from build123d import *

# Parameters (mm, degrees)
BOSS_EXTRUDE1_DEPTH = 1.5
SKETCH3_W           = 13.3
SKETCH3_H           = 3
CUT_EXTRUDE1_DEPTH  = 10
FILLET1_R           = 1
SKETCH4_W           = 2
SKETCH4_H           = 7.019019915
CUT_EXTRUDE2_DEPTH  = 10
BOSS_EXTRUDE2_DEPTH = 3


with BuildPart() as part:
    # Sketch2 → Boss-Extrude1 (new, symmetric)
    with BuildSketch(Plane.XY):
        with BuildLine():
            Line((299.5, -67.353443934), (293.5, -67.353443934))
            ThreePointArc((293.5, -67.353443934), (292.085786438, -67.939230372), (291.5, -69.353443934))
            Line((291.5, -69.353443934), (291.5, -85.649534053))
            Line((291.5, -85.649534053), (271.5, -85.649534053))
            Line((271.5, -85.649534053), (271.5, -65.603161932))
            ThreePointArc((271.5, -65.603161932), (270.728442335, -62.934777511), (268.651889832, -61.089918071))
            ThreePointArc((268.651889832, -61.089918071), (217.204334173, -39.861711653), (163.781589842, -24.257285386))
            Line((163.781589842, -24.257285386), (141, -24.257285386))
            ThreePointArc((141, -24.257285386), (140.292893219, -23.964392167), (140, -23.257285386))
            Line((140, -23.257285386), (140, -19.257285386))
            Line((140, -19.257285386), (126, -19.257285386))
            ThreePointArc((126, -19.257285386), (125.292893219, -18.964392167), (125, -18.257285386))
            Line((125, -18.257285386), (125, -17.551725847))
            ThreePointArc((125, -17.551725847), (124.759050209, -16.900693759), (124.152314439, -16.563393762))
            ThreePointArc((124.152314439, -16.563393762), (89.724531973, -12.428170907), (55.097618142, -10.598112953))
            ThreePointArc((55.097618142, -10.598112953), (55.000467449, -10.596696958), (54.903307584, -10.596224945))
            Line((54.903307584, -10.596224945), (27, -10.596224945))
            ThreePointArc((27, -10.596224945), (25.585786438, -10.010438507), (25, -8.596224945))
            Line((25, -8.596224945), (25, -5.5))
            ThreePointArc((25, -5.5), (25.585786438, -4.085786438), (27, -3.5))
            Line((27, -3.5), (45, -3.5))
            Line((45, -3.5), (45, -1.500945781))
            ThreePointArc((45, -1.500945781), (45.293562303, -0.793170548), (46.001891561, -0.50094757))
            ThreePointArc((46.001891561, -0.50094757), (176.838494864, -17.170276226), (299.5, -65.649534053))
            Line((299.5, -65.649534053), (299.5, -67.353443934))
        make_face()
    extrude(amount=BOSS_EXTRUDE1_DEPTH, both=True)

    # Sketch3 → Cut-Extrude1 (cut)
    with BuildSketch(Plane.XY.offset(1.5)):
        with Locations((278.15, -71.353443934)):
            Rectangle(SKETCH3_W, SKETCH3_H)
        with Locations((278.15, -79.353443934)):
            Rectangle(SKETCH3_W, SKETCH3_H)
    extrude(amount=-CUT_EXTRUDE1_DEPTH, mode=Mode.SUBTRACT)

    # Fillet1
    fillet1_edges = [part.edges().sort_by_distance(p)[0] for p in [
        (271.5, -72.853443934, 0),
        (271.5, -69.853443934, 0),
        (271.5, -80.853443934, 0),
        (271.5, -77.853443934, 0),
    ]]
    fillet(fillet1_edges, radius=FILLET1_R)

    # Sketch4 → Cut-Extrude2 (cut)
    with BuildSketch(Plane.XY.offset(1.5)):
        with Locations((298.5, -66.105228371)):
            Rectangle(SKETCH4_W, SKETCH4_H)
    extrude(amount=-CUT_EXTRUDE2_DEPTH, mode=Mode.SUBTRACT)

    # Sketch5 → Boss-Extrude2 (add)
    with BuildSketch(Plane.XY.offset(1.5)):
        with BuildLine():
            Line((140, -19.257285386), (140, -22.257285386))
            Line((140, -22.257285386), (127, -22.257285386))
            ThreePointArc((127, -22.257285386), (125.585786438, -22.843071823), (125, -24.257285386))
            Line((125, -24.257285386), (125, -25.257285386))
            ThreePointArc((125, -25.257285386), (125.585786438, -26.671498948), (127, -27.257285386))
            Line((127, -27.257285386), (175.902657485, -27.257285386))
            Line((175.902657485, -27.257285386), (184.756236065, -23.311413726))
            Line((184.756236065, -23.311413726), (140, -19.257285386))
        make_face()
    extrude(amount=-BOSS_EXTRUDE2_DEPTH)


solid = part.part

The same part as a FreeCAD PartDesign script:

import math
import FreeCAD as App
import Part
import Sketcher


def edges_at(feature, points):
    """Names of the edges that pass closest to the given points."""
    edges = feature.Shape.Edges
    near = lambda p: min(range(len(edges)), key=lambda i: edges[i].distToShape(Part.Vertex(*p))[0])
    return sorted({f"Edge{near(p) + 1}" for p in points})


def add_polygon(sketch, points):
    """Adds a closed chain of lines whose ends are joined by coincident constraints."""
    first, n = sketch.GeometryCount, len(points)
    for a, b in zip(points, points[1:] + points[:1]):
        sketch.addGeometry(Part.LineSegment(App.Vector(*a, 0), App.Vector(*b, 0)), False)
    for i in range(n):
        sketch.addConstraint(Sketcher.Constraint("Coincident", first + i, 2, first + (i + 1) % n, 1))

doc = App.newDocument("Part")
body = doc.addObject("PartDesign::Body", "Body")

# Sketch on XY plane
sketch1 = doc.addObject("Sketcher::SketchObject", "Sketch")
body.addObject(sketch1)
sketch1.AttachmentSupport = (doc.XY_Plane, [""])
sketch1.MapMode = "FlatFace"
sketch1.addGeometry(Part.LineSegment(App.Vector(293.5, -67.353444, 0), App.Vector(299.5, -67.353444, 0)), False)
sketch1.addGeometry(Part.LineSegment(App.Vector(299.5, -67.353444, 0), App.Vector(299.5, -65.649534, 0)), False)
sketch1.addGeometry(Part.ArcOfCircle(Part.Circle(App.Vector(45, -530.163894, 0), App.Vector(0, 0, 1), 529.663894), math.radians(61.282369), math.radians(89.891621)), False)
sketch1.addGeometry(Part.ArcOfCircle(Part.Circle(App.Vector(46, -1.500946, 0), App.Vector(0, 0, 1), 1), math.radians(89.891621), math.radians(180)), False)
sketch1.addGeometry(Part.LineSegment(App.Vector(45, -1.500946, 0), App.Vector(45, -3.5, 0)), False)
sketch1.addGeometry(Part.LineSegment(App.Vector(45, -3.5, 0), App.Vector(27, -3.5, 0)), False)
sketch1.addGeometry(Part.ArcOfCircle(Part.Circle(App.Vector(27, -5.5, 0), App.Vector(0, 0, 1), 2), math.radians(90), math.radians(180)), False)
sketch1.addGeometry(Part.LineSegment(App.Vector(25, -5.5, 0), App.Vector(25, -8.596225, 0)), False)
sketch1.addGeometry(Part.ArcOfCircle(Part.Circle(App.Vector(27, -8.596225, 0), App.Vector(0, 0, 1), 2), math.radians(-180), math.radians(-90)), False)
sketch1.addGeometry(Part.LineSegment(App.Vector(27, -10.596225, 0), App.Vector(54.903308, -10.596225, 0)), False)
sketch1.addGeometry(Part.ArcOfCircle(Part.Circle(App.Vector(54.903308, -20.596221, 0), App.Vector(0, 0, 1), 9.999996), math.radians(88.886612), math.radians(90)), False)
sketch1.addGeometry(Part.ArcOfCircle(Part.Circle(App.Vector(45, -530.163894, 0), App.Vector(0, 0, 1), 519.663894), math.radians(81.238924), math.radians(88.886612)), False)
sketch1.addGeometry(Part.ArcOfCircle(Part.Circle(App.Vector(124, -17.551726, 0), App.Vector(0, 0, 1), 1), math.radians(0), math.radians(81.238924)), False)
sketch1.addGeometry(Part.LineSegment(App.Vector(125, -17.551726, 0), App.Vector(125, -18.257285, 0)), False)
sketch1.addGeometry(Part.ArcOfCircle(Part.Circle(App.Vector(126, -18.257285, 0), App.Vector(0, 0, 1), 1), math.radians(-180), math.radians(-90)), False)
sketch1.addGeometry(Part.LineSegment(App.Vector(126, -19.257285, 0), App.Vector(140, -19.257285, 0)), False)
sketch1.addGeometry(Part.LineSegment(App.Vector(140, -19.257285, 0), App.Vector(140, -23.257285, 0)), False)
sketch1.addGeometry(Part.ArcOfCircle(Part.Circle(App.Vector(141, -23.257285, 0), App.Vector(0, 0, 1), 1), math.radians(-180), math.radians(-90)), False)
sketch1.addGeometry(Part.LineSegment(App.Vector(141, -24.257285, 0), App.Vector(163.78159, -24.257285, 0)), False)
sketch1.addGeometry(Part.ArcOfCircle(Part.Circle(App.Vector(45, -530.163894, 0), App.Vector(0, 0, 1), 519.663894), math.radians(64.508451), math.radians(76.786876)), False)
sketch1.addGeometry(Part.ArcOfCircle(Part.Circle(App.Vector(266.5, -65.603162, 0), App.Vector(0, 0, 1), 5), math.radians(0), math.radians(64.508451)), False)
sketch1.addGeometry(Part.LineSegment(App.Vector(271.5, -65.603162, 0), App.Vector(271.5, -85.649534, 0)), False)
sketch1.addGeometry(Part.LineSegment(App.Vector(271.5, -85.649534, 0), App.Vector(291.5, -85.649534, 0)), False)
sketch1.addGeometry(Part.LineSegment(App.Vector(291.5, -85.649534, 0), App.Vector(291.5, -69.353444, 0)), False)
sketch1.addGeometry(Part.ArcOfCircle(Part.Circle(App.Vector(293.5, -69.353444, 0), App.Vector(0, 0, 1), 2), math.radians(90), math.radians(180)), False)
sketch1.addConstraint(Sketcher.Constraint("Coincident", 0, 2, 1, 1))
sketch1.addConstraint(Sketcher.Constraint("Coincident", 1, 2, 2, 1))
sketch1.addConstraint(Sketcher.Constraint("Tangent", 2, 2, 3, 1))
sketch1.addConstraint(Sketcher.Constraint("Tangent", 3, 2, 4, 1))
sketch1.addConstraint(Sketcher.Constraint("Coincident", 4, 2, 5, 1))
sketch1.addConstraint(Sketcher.Constraint("Tangent", 5, 2, 6, 1))
sketch1.addConstraint(Sketcher.Constraint("Tangent", 6, 2, 7, 1))
sketch1.addConstraint(Sketcher.Constraint("Tangent", 7, 2, 8, 1))
sketch1.addConstraint(Sketcher.Constraint("Tangent", 8, 2, 9, 1))
sketch1.addConstraint(Sketcher.Constraint("Tangent", 9, 2, 10, 2))
sketch1.addConstraint(Sketcher.Constraint("Tangent", 10, 1, 11, 2))
sketch1.addConstraint(Sketcher.Constraint("Tangent", 11, 1, 12, 2))
sketch1.addConstraint(Sketcher.Constraint("Tangent", 12, 1, 13, 1))
sketch1.addConstraint(Sketcher.Constraint("Tangent", 13, 2, 14, 1))
sketch1.addConstraint(Sketcher.Constraint("Tangent", 14, 2, 15, 1))
sketch1.addConstraint(Sketcher.Constraint("Coincident", 15, 2, 16, 1))
sketch1.addConstraint(Sketcher.Constraint("Tangent", 16, 2, 17, 1))
sketch1.addConstraint(Sketcher.Constraint("Tangent", 17, 2, 18, 1))
sketch1.addConstraint(Sketcher.Constraint("Coincident", 18, 2, 19, 2))
sketch1.addConstraint(Sketcher.Constraint("Tangent", 19, 1, 20, 2))
sketch1.addConstraint(Sketcher.Constraint("Tangent", 20, 1, 21, 1))
sketch1.addConstraint(Sketcher.Constraint("Coincident", 21, 2, 22, 1))
sketch1.addConstraint(Sketcher.Constraint("Coincident", 22, 2, 23, 1))
sketch1.addConstraint(Sketcher.Constraint("Tangent", 23, 2, 24, 2))
sketch1.addConstraint(Sketcher.Constraint("Tangent", 24, 1, 0, 1))
sketch1.addConstraint(Sketcher.Constraint("Horizontal", 0))
sketch1.addConstraint(Sketcher.Constraint("Vertical", 1))
sketch1.addConstraint(Sketcher.Constraint("Vertical", 4))
sketch1.addConstraint(Sketcher.Constraint("Horizontal", 5))
sketch1.addConstraint(Sketcher.Constraint("Vertical", 7))
sketch1.addConstraint(Sketcher.Constraint("Horizontal", 9))
sketch1.addConstraint(Sketcher.Constraint("Vertical", 13))
sketch1.addConstraint(Sketcher.Constraint("Horizontal", 15))
sketch1.addConstraint(Sketcher.Constraint("Vertical", 16))
sketch1.addConstraint(Sketcher.Constraint("Horizontal", 18))
sketch1.addConstraint(Sketcher.Constraint("Vertical", 21))
sketch1.addConstraint(Sketcher.Constraint("Horizontal", 22))
sketch1.addConstraint(Sketcher.Constraint("Vertical", 23))
sketch1.addConstraint(Sketcher.Constraint("Coincident", 11, 3, 2, 3))
sketch1.addConstraint(Sketcher.Constraint("Coincident", 19, 3, 2, 3))
sketch1.addConstraint(Sketcher.Constraint("Equal", 6, 8))
sketch1.addConstraint(Sketcher.Constraint("Equal", 3, 12))
sketch1.addConstraint(Sketcher.Constraint("Equal", 12, 14))
sketch1.addConstraint(Sketcher.Constraint("Equal", 14, 17))
sketch1.addConstraint(Sketcher.Constraint("Equal", 11, 19))
sketch1.addConstraint(Sketcher.Constraint("Equal", 8, 24))
sketch1.addConstraint(Sketcher.Constraint("Vertical", 19, 3, 3, 2))
sketch1.addConstraint(Sketcher.Constraint("Radius", 3, 1.0))
sketch1.addConstraint(Sketcher.Constraint("Radius", 6, 2.0))
sketch1.addConstraint(Sketcher.Constraint("Radius", 20, 5.0))
sketch1.addConstraint(Sketcher.Constraint("DistanceX", 0, 1, 0, 2, 6.0))
sketch1.addConstraint(Sketcher.Constraint("DistanceX", 5, 2, 5, 1, 18.0))
sketch1.addConstraint(Sketcher.Constraint("DistanceX", 15, 1, 15, 2, 14.0))
sketch1.addConstraint(Sketcher.Constraint("DistanceX", 22, 1, 22, 2, 20.0))
sketch1.addConstraint(Sketcher.Constraint("DistanceY", 16, 2, 16, 1, 4.0))
sketch1.addConstraint(Sketcher.Constraint("DistanceX", -1, 1, 2, 3, 45.0))
sketch1.addConstraint(Sketcher.Constraint("DistanceX", -1, 1, 12, 3, 124.0))
sketch1.addConstraint(Sketcher.Constraint("DistanceY", 22, 2, 1, 2, 20.0))
sketch1.addConstraint(Sketcher.Constraint("DistanceY", 6, 3, -1, 1, 5.5))
sketch1.addConstraint(Sketcher.Constraint("DistanceX", -1, 1, 20, 3, 266.5))
sketch1.addConstraint(Sketcher.Constraint("Radius", 2, 529.663894))
sketch1.addConstraint(Sketcher.Constraint("Radius", 10, 9.999996))
sketch1.addConstraint(Sketcher.Constraint("Radius", 11, 519.663894))
sketch1.addConstraint(Sketcher.Constraint("DistanceX", 18, 1, 18, 2, 22.78159))
sketch1.addConstraint(Sketcher.Constraint("DistanceY", 1, 1, 1, 2, 1.70391))
sketch1.addConstraint(Sketcher.Constraint("DistanceY", 12, 3, 8, 3, 8.955501))
sketch1.addConstraint(Sketcher.Constraint("DistanceY", 4, 2, 4, 1, 1.999054))
pad1 = doc.addObject("PartDesign::Pad", "Pad")
body.addObject(pad1)
pad1.Profile = sketch1
pad1.Length = 3
pad1.Midplane = True

# Sketch on XY plane
sketch2 = doc.addObject("Sketcher::SketchObject", "Sketch001")
body.addObject(sketch2)
sketch2.AttachmentSupport = (doc.XY_Plane, [""])
sketch2.MapMode = "FlatFace"
sketch2.AttachmentOffset = App.Placement(App.Vector(0, 0, 1.5), App.Rotation())
add_polygon(sketch2, [(271.5, -69.9), (271.5, -72.9), (284.8, -72.9), (284.8, -69.9)])  # lines 0-3
add_polygon(sketch2, [(271.5, -77.9), (271.5, -80.9), (284.8, -80.9), (284.8, -77.9)])  # lines 4-7
sketch2.addConstraint(Sketcher.Constraint("Vertical", 0))
sketch2.addConstraint(Sketcher.Constraint("Horizontal", 1))
sketch2.addConstraint(Sketcher.Constraint("Vertical", 2))
sketch2.addConstraint(Sketcher.Constraint("Horizontal", 3))
sketch2.addConstraint(Sketcher.Constraint("Vertical", 4))
sketch2.addConstraint(Sketcher.Constraint("Horizontal", 5))
sketch2.addConstraint(Sketcher.Constraint("Vertical", 6))
sketch2.addConstraint(Sketcher.Constraint("Horizontal", 7))
sketch2.addConstraint(Sketcher.Constraint("Vertical", 3, 2, 4, 2))
sketch2.addConstraint(Sketcher.Constraint("Vertical", 2, 2, 5, 2))
sketch2.addConstraint(Sketcher.Constraint("Equal", 2, 4))
sketch2.addConstraint(Sketcher.Constraint("DistanceY", 0, 2, 0, 1, 3.0))
sketch2.addConstraint(Sketcher.Constraint("DistanceX", 1, 1, 1, 2, 13.3))
sketch2.addConstraint(Sketcher.Constraint("DistanceY", 4, 2, 0, 2, 8.0))
sketch2.addConstraint(Sketcher.Constraint("DistanceX", -1, 1, 0, 2, 271.5))
sketch2.addConstraint(Sketcher.Constraint("DistanceY", 0, 2, -1, 1, 72.853444))
pocket1 = doc.addObject("PartDesign::Pocket", "Pocket")
body.addObject(pocket1)
pocket1.Profile = sketch2
pocket1.Length = 10
doc.recompute()

fillet = doc.addObject("PartDesign::Fillet", "Fillet")
body.addObject(fillet)
fillet.Base = (pocket1, edges_at(pocket1, [
    (271.5, -72.853, 0),
    (271.5, -69.853, 0),
    (271.5, -80.853, 0),
    (271.5, -77.853, 0),
]))
fillet.Radius = 1

# Sketch on XY plane
sketch3 = doc.addObject("Sketcher::SketchObject", "Sketch002")
body.addObject(sketch3)
sketch3.AttachmentSupport = (doc.XY_Plane, [""])
sketch3.MapMode = "FlatFace"
sketch3.AttachmentOffset = App.Placement(App.Vector(0, 0, 1.5), App.Rotation())
add_polygon(sketch3, [(297.5, -62.6), (297.5, -69.6), (299.5, -69.6), (299.5, -62.6)])  # lines 0-3
sketch3.addConstraint(Sketcher.Constraint("Vertical", 0))
sketch3.addConstraint(Sketcher.Constraint("Horizontal", 1))
sketch3.addConstraint(Sketcher.Constraint("Vertical", 2))
sketch3.addConstraint(Sketcher.Constraint("Horizontal", 3))
sketch3.addConstraint(Sketcher.Constraint("DistanceX", 1, 1, 1, 2, 2.0))
sketch3.addConstraint(Sketcher.Constraint("DistanceX", -1, 1, 0, 2, 297.5))
sketch3.addConstraint(Sketcher.Constraint("DistanceY", 0, 2, 0, 1, 7.01902))
sketch3.addConstraint(Sketcher.Constraint("DistanceY", 0, 2, -1, 1, 69.614738))
pocket2 = doc.addObject("PartDesign::Pocket", "Pocket001")
body.addObject(pocket2)
pocket2.Profile = sketch3
pocket2.Length = 10

# Sketch on XY plane
sketch4 = doc.addObject("Sketcher::SketchObject", "Sketch003")
body.addObject(sketch4)
sketch4.AttachmentSupport = (doc.XY_Plane, [""])
sketch4.MapMode = "FlatFace"
sketch4.AttachmentOffset = App.Placement(App.Vector(0, 0, 1.5), App.Rotation())
sketch4.addGeometry(Part.LineSegment(App.Vector(140, -19.3, 0), App.Vector(140, -22.3, 0)), False)
sketch4.addGeometry(Part.LineSegment(App.Vector(140, -22.3, 0), App.Vector(127, -22.3, 0)), False)
sketch4.addGeometry(Part.ArcOfCircle(Part.Circle(App.Vector(127, -24.3, 0), App.Vector(0, 0, 1), 2), math.radians(90), math.radians(180)), False)
sketch4.addGeometry(Part.LineSegment(App.Vector(125, -24.3, 0), App.Vector(125, -25.3, 0)), False)
sketch4.addGeometry(Part.ArcOfCircle(Part.Circle(App.Vector(127, -25.3, 0), App.Vector(0, 0, 1), 2), math.radians(-180), math.radians(-90)), False)
sketch4.addGeometry(Part.LineSegment(App.Vector(127, -27.3, 0), App.Vector(175.9, -27.3, 0)), False)
sketch4.addGeometry(Part.LineSegment(App.Vector(175.9, -27.3, 0), App.Vector(184.8, -23.3, 0)), False)
sketch4.addGeometry(Part.LineSegment(App.Vector(184.8, -23.3, 0), App.Vector(140, -19.3, 0)), False)
sketch4.addConstraint(Sketcher.Constraint("Coincident", 0, 2, 1, 1))
sketch4.addConstraint(Sketcher.Constraint("Tangent", 1, 2, 2, 1))
sketch4.addConstraint(Sketcher.Constraint("Tangent", 2, 2, 3, 1))
sketch4.addConstraint(Sketcher.Constraint("Tangent", 3, 2, 4, 1))
sketch4.addConstraint(Sketcher.Constraint("Tangent", 4, 2, 5, 1))
sketch4.addConstraint(Sketcher.Constraint("Coincident", 5, 2, 6, 1))
sketch4.addConstraint(Sketcher.Constraint("Coincident", 6, 2, 7, 1))
sketch4.addConstraint(Sketcher.Constraint("Coincident", 7, 2, 0, 1))
sketch4.addConstraint(Sketcher.Constraint("Vertical", 0))
sketch4.addConstraint(Sketcher.Constraint("Horizontal", 1))
sketch4.addConstraint(Sketcher.Constraint("Vertical", 3))
sketch4.addConstraint(Sketcher.Constraint("Horizontal", 5))
sketch4.addConstraint(Sketcher.Constraint("Equal", 2, 4))
sketch4.addConstraint(Sketcher.Constraint("Radius", 2, 2.0))
sketch4.addConstraint(Sketcher.Constraint("DistanceX", 1, 2, 1, 1, 13.0))
sketch4.addConstraint(Sketcher.Constraint("DistanceY", 0, 2, 0, 1, 3.0))
sketch4.addConstraint(Sketcher.Constraint("DistanceY", 3, 2, 3, 1, 1.0))
sketch4.addConstraint(Sketcher.Constraint("DistanceX", -1, 1, 2, 3, 127.0))
sketch4.addConstraint(Sketcher.Constraint("DistanceX", 5, 1, 5, 2, 48.902657))
sketch4.addConstraint(Sketcher.Constraint("DistanceX", 5, 2, 6, 2, 8.853579))
sketch4.addConstraint(Sketcher.Constraint("DistanceY", 5, 2, 6, 2, 3.945872))
sketch4.addConstraint(Sketcher.Constraint("DistanceY", 2, 3, -1, 1, 24.257285))
pad2 = doc.addObject("PartDesign::Pad", "Pad001")
body.addObject(pad2)
pad2.Profile = sketch4
pad2.Length = 3
pad2.Reversed = True

doc.recompute()
